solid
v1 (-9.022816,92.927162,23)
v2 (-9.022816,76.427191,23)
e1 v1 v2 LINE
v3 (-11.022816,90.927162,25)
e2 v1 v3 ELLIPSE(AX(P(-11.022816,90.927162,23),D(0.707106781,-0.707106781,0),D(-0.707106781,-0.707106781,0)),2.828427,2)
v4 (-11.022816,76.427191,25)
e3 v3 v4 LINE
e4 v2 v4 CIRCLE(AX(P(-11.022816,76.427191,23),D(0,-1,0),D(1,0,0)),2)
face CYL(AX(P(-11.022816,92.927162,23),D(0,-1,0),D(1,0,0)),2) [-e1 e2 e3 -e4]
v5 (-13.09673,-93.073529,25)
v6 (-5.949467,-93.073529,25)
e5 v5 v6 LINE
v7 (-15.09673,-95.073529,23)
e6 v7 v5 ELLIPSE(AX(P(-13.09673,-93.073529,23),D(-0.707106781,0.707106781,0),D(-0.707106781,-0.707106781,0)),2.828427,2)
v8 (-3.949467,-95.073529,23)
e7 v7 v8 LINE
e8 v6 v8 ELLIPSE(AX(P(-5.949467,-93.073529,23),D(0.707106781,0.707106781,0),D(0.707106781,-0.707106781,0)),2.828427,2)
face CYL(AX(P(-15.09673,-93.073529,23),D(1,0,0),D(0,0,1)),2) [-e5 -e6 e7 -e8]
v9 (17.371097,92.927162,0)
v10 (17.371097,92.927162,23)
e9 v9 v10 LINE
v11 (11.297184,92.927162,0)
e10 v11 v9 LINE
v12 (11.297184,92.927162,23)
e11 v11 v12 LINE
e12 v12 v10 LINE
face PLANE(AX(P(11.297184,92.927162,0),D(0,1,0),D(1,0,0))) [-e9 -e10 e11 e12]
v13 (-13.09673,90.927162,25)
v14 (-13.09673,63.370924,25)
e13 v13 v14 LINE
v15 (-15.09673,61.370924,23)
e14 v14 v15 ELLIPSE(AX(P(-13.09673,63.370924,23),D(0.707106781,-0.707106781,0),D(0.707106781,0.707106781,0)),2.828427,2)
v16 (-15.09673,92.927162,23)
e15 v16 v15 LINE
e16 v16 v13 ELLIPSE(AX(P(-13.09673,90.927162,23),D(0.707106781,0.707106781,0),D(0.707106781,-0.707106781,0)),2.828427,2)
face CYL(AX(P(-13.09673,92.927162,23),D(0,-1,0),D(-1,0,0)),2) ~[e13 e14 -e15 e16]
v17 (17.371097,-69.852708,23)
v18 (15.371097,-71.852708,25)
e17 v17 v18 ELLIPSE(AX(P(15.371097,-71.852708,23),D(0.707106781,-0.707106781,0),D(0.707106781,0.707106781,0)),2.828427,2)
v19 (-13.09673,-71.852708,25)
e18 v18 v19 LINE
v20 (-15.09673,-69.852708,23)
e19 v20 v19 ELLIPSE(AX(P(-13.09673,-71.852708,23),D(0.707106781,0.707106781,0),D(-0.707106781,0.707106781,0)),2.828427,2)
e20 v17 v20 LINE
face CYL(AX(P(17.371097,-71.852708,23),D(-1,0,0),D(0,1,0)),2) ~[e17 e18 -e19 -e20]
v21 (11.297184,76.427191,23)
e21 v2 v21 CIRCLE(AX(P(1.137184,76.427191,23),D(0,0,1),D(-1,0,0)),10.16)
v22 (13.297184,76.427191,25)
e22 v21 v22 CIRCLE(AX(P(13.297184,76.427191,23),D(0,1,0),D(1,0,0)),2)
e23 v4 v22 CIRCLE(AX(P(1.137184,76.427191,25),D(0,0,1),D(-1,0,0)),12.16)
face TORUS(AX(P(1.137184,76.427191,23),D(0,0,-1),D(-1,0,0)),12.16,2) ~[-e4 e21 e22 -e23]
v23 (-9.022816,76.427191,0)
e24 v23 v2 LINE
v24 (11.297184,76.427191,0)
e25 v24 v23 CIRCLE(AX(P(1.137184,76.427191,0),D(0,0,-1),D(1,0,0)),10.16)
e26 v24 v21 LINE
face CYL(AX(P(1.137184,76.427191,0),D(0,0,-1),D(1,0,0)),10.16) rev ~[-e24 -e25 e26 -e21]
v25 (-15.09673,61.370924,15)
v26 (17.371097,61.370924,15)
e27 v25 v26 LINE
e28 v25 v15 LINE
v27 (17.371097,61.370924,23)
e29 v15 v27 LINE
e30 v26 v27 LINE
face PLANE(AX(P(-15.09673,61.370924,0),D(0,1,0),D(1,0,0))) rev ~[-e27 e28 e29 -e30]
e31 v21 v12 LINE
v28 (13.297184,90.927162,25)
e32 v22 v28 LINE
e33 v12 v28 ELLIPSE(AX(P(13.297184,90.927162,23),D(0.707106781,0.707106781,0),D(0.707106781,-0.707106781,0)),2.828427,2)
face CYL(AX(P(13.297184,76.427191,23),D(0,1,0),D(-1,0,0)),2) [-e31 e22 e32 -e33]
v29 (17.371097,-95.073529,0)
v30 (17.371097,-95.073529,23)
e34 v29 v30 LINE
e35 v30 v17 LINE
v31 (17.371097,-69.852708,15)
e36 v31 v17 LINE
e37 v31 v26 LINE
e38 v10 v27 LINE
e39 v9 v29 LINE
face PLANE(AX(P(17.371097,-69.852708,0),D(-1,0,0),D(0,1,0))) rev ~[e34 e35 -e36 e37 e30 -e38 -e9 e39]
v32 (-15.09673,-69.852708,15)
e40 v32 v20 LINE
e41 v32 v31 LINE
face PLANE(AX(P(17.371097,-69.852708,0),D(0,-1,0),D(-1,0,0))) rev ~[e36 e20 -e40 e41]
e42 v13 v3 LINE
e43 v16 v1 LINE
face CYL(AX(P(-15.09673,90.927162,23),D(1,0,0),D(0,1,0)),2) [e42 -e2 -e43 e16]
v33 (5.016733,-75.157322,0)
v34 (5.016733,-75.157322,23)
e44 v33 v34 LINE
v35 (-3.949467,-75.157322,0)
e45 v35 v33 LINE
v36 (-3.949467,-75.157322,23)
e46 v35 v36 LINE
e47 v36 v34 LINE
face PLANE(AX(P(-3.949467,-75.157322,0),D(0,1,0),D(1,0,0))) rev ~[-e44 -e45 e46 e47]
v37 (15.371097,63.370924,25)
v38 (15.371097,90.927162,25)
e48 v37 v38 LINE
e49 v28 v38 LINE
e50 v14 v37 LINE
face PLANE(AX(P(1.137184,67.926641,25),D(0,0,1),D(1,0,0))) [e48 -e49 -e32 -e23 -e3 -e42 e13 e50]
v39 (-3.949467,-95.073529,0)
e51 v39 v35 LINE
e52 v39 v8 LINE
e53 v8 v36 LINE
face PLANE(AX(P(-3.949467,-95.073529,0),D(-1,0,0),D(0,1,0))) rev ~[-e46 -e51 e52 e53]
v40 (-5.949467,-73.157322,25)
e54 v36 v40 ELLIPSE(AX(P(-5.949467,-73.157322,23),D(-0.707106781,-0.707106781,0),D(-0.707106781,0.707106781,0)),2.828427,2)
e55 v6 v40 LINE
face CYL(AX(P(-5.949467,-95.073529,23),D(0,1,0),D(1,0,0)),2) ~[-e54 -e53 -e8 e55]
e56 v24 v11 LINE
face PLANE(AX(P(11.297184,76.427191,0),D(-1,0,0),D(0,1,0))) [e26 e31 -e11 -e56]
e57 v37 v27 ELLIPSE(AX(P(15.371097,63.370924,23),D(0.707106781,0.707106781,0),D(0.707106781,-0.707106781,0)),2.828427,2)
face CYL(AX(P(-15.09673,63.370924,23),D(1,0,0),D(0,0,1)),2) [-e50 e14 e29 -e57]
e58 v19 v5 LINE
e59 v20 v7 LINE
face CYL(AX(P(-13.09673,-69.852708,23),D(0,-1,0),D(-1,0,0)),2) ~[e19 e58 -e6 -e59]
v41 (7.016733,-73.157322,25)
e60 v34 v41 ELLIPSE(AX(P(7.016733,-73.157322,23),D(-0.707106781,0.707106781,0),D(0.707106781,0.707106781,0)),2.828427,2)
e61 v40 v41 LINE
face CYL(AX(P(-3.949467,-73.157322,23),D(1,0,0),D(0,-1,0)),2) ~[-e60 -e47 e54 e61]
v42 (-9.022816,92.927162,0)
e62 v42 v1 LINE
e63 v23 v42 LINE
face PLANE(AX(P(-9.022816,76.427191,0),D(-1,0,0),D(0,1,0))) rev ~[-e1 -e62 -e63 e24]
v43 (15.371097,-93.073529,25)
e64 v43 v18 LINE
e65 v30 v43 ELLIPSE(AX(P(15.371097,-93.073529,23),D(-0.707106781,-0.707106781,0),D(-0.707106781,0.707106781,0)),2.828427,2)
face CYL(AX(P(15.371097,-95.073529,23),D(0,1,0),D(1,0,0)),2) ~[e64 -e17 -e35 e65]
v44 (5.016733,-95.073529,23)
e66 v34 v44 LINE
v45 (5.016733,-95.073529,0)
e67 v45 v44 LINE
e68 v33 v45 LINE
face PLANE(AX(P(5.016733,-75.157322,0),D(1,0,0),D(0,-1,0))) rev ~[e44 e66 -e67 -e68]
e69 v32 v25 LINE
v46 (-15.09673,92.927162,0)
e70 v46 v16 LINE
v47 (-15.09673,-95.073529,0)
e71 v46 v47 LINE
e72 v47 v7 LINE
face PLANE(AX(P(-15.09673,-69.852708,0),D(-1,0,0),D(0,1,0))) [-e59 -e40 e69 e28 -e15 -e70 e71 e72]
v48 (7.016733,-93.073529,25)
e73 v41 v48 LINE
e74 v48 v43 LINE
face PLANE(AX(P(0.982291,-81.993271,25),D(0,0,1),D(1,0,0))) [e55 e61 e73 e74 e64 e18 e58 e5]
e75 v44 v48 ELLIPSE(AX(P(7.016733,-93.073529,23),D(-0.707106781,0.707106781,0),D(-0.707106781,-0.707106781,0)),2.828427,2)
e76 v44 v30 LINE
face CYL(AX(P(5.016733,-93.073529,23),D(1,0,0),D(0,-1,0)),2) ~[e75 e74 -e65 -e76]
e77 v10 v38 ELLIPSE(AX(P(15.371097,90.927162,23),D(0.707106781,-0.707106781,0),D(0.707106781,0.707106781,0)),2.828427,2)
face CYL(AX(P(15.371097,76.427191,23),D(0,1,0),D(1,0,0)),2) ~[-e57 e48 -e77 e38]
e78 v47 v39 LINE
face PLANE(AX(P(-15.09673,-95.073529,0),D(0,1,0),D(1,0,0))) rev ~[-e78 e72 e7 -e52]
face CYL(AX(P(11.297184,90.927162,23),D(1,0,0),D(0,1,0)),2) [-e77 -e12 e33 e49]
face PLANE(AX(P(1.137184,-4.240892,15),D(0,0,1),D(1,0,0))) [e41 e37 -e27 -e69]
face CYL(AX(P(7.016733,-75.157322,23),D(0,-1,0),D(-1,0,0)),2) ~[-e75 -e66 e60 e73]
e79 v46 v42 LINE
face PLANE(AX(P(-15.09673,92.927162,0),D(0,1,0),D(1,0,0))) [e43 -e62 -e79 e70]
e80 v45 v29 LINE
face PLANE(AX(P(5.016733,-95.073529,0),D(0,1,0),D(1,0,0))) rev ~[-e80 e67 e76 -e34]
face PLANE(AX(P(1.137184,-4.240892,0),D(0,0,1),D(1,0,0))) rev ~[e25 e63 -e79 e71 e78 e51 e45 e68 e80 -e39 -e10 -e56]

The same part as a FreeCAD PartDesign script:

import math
import FreeCAD as App
import Part
import Sketcher
Q = App.Units.Quantity


def edges_at(feature, points):
    """Names of the edges that pass closest to the given points."""
    edges = feature.Shape.Edges
    near = lambda p: min(range(len(edges)), key=lambda i: edges[i].distToShape(Part.Vertex(*p))[0])
    return sorted({f"Edge{near(p) + 1}" for p in points})

doc = App.newDocument("Part")
body = doc.addObject("PartDesign::Body", "Body")

sketch1 = doc.addObject("Sketcher::SketchObject", "Sketch")
body.addObject(sketch1)
sketch1.AttachmentSupport = (doc.XY_Plane, [""])
sketch1.MapMode = "FlatFace"
sketch1.addGeometry([
    Part.LineSegment(App.Vector(17.371097, -69.852708, 0), App.Vector(-15.09673, -69.852708, 0)),
    Part.LineSegment(App.Vector(-15.09673, -69.852708, 0), App.Vector(-15.09673, -95.073529, 0)),
    Part.LineSegment(App.Vector(-15.09673, -95.073529, 0), App.Vector(-3.949467, -95.073529, 0)),
    Part.LineSegment(App.Vector(-3.949467, -95.073529, 0), App.Vector(-3.949467, -75.157322, 0)),
    Part.LineSegment(App.Vector(-3.949467, -75.157322, 0), App.Vector(5.016733, -75.157322, 0)),
    Part.LineSegment(App.Vector(5.016733, -75.157322, 0), App.Vector(5.016733, -95.073529, 0)),
    Part.LineSegment(App.Vector(5.016733, -95.073529, 0), App.Vector(17.371097, -95.073529, 0)),
    Part.LineSegment(App.Vector(17.371097, -95.073529, 0), App.Vector(17.371097, -69.852708, 0)),
], False)
sketch1.addConstraint([
    Sketcher.Constraint("Coincident", 0, 2, 1, 1),
    Sketcher.Constraint("Coincident", 1, 2, 2, 1),
    Sketcher.Constraint("Coincident", 2, 2, 3, 1),
    Sketcher.Constraint("Coincident", 3, 2, 4, 1),
    Sketcher.Constraint("Coincident", 4, 2, 5, 1),
    Sketcher.Constraint("Coincident", 5, 2, 6, 1),
    Sketcher.Constraint("Coincident", 6, 2, 7, 1),
    Sketcher.Constraint("Coincident", 7, 2, 0, 1),
    Sketcher.Constraint("Horizontal", 0),
    Sketcher.Constraint("Vertical", 1),
    Sketcher.Constraint("Horizontal", 2),
    Sketcher.Constraint("Vertical", 3),
    Sketcher.Constraint("Horizontal", 4),
    Sketcher.Constraint("Vertical", 5),
    Sketcher.Constraint("Horizontal", 6),
    Sketcher.Constraint("Vertical", 7),
    Sketcher.Constraint("Horizontal", 2, 2, 5, 2),
    Sketcher.Constraint("DistanceX", 4, 1, 4, 2, Q("8.9662 mm")),
    Sketcher.Constraint("DistanceY", 1, 2, 1, 1, Q("25.220821 mm")),
    Sketcher.Constraint("DistanceX", 0, 2, 0, 1, Q("32.467826 mm")),
    Sketcher.Constraint("DistanceX", 2, 1, 2, 2, Q("11.147263 mm")),
    Sketcher.Constraint("DistanceY", 3, 1, 3, 2, Q("19.916207 mm")),
    Sketcher.Constraint("DistanceX", 0, 2, -1, 1, Q("15.09673 mm")),
    Sketcher.Constraint("DistanceY", 1, 2, -1, 1, Q("95.073529 mm")),
])
pad1 = doc.addObject("PartDesign::Pad", "Pad")
body.addObject(pad1)
pad1.Profile = sketch1
pad1.Length = 25
body2 = doc.addObject("PartDesign::Body", "Body001")

sketch2 = doc.addObject("Sketcher::SketchObject", "Sketch001")
body2.addObject(sketch2)
sketch2.AttachmentSupport = (doc.getObject("XY_Plane001"), [""])
sketch2.MapMode = "FlatFace"
sketch2.addGeometry([
    Part.LineSegment(App.Vector(-15.09673, 61.370924, 0), App.Vector(17.371097, 61.370924, 0)),
    Part.LineSegment(App.Vector(17.371097, 61.370924, 0), App.Vector(17.371097, 76.427191, 0)),
    Part.LineSegment(App.Vector(17.371097, 76.427191, 0), App.Vector(17.371097, 92.927162, 0)),
    Part.LineSegment(App.Vector(17.371097, 92.927162, 0), App.Vector(11.297184, 92.927162, 0)),
    Part.LineSegment(App.Vector(11.297184, 92.927162, 0), App.Vector(11.297184, 76.427191, 0)),
    Part.ArcOfCircle(Part.Circle(App.Vector(1.137184, 76.427191, 0), App.Vector(0, 0, 1), 10.16), math.radians(180), math.radians(360)),
    Part.LineSegment(App.Vector(-9.022816, 76.427191, 0), App.Vector(-9.022816, 92.927162, 0)),
    Part.LineSegment(App.Vector(-9.022816, 92.927162, 0), App.Vector(-15.09673, 92.927162, 0)),
    Part.LineSegment(App.Vector(-15.09673, 92.927162, 0), App.Vector(-15.09673, 61.370924, 0)),
], False)
sketch2.addConstraint([
    Sketcher.Constraint("Coincident", 0, 2, 1, 1),
    Sketcher.Constraint("Coincident", 1, 2, 2, 1),
    Sketcher.Constraint("Coincident", 2, 2, 3, 1),
    Sketcher.Constraint("Coincident", 3, 2, 4, 1),
    Sketcher.Constraint("Tangent", 4, 2, 5, 2),
    Sketcher.Constraint("Tangent", 5, 1, 6, 1),
    Sketcher.Constraint("Coincident", 6, 2, 7, 1),
    Sketcher.Constraint("Coincident", 7, 2, 8, 1),
    Sketcher.Constraint("Coincident", 8, 2, 0, 1),
    Sketcher.Constraint("Horizontal", 0),
    Sketcher.Constraint("Vertical", 1),
    Sketcher.Constraint("Vertical", 2),
    Sketcher.Constraint("Horizontal", 3),
    Sketcher.Constraint("Vertical", 4),
    Sketcher.Constraint("Vertical", 6),
    Sketcher.Constraint("Horizontal", 7),
    Sketcher.Constraint("Vertical", 8),
    Sketcher.Constraint("Horizontal", 5, 3, 1, 2),
    Sketcher.Constraint("Horizontal", 3, 2, 6, 2),
    Sketcher.Constraint("Equal", 3, 7),
    Sketcher.Constraint("Radius", 5, Q("10.16 mm")),
    Sketcher.Constraint("DistanceY", 2, 1, 2, 2, Q("16.499971 mm")),
    Sketcher.Constraint("DistanceX", 0, 1, 0, 2, Q("32.467826 mm")),
    Sketcher.Constraint("DistanceY", 1, 1, 1, 2, Q("15.056267 mm")),
    Sketcher.Constraint("DistanceY", -1, 1, 5, 3, Q("76.427191 mm")),
    Sketcher.Constraint("DistanceX", 7, 2, -1, 1, Q("15.09673 mm")),
])
pad2 = doc.addObject("PartDesign::Pad", "Pad001")
body2.addObject(pad2)
pad2.Profile = sketch2
pad2.Length = 25
body.AllowCompound = True
doc.recompute()

boolean = doc.addObject("PartDesign::Boolean", "Boolean")
body.addObject(boolean)
boolean.Type = "Fuse"
boolean.addObjects([body2])

sketch3 = doc.addObject("Sketcher::SketchObject", "Sketch002")
body.addObject(sketch3)
sketch3.AttachmentSupport = (doc.XY_Plane, [""])
sketch3.MapMode = "FlatFace"
sketch3.addGeometry([
    Part.LineSegment(App.Vector(-15.09673, 61.370924, 0), App.Vector(-15.09673, -69.852708, 0)),
    Part.LineSegment(App.Vector(-15.09673, -69.852708, 0), App.Vector(17.371097, -69.852708, 0)),
    Part.LineSegment(App.Vector(17.371097, -69.852708, 0), App.Vector(17.371097, 61.370924, 0)),
    Part.LineSegment(App.Vector(17.371097, 61.370924, 0), App.Vector(-15.09673, 61.370924, 0)),
], False)
sketch3.addConstraint([
    Sketcher.Constraint("Coincident", 0, 2, 1, 1),
    Sketcher.Constraint("Coincident", 1, 2, 2, 1),
    Sketcher.Constraint("Coincident", 2, 2, 3, 1),
    Sketcher.Constraint("Coincident", 3, 2, 0, 1),
    Sketcher.Constraint("Vertical", 0),
    Sketcher.Constraint("Horizontal", 1),
    Sketcher.Constraint("Vertical", 2),
    Sketcher.Constraint("Horizontal", 3),
    Sketcher.Constraint("DistanceY", 0, 2, 0, 1, Q("131.223632 mm")),
    Sketcher.Constraint("DistanceX", 1, 1, 1, 2, Q("32.467826 mm")),
    Sketcher.Constraint("DistanceX", 0, 2, -1, 1, Q("15.09673 mm")),
    Sketcher.Constraint("DistanceY", 0, 2, -1, 1, Q("69.852708 mm")),
])
pad3 = doc.addObject("PartDesign::Pad", "Pad002")
body.addObject(pad3)
pad3.Profile = sketch3
pad3.Length = 15
doc.recompute()

fillet = doc.addObject("PartDesign::Fillet", "Fillet")
body.addObject(fillet)
fillet.Base = (pad3, edges_at(pad3, [
    (1.137, 61.371, 25),
    (17.371, 84.677, 25),
    (14.334, 92.927, 25),
    (11.297, 84.677, 25),
    (1.137, 66.267, 25),
    (-9.023, 84.677, 25),
    (-12.06, 92.927, 25),
    (-15.097, 77.149, 25),
    (17.371, -82.463, 25),
    (1.137, -69.853, 25),
    (-15.097, -82.463, 25),
    (-9.523, -95.074, 25),
    (-3.949, -85.115, 25),
    (0.534, -75.157, 25),
    (5.017, -85.115, 25),
    (11.194, -95.074, 25),
]))
fillet.Radius = 2

doc.recompute()
